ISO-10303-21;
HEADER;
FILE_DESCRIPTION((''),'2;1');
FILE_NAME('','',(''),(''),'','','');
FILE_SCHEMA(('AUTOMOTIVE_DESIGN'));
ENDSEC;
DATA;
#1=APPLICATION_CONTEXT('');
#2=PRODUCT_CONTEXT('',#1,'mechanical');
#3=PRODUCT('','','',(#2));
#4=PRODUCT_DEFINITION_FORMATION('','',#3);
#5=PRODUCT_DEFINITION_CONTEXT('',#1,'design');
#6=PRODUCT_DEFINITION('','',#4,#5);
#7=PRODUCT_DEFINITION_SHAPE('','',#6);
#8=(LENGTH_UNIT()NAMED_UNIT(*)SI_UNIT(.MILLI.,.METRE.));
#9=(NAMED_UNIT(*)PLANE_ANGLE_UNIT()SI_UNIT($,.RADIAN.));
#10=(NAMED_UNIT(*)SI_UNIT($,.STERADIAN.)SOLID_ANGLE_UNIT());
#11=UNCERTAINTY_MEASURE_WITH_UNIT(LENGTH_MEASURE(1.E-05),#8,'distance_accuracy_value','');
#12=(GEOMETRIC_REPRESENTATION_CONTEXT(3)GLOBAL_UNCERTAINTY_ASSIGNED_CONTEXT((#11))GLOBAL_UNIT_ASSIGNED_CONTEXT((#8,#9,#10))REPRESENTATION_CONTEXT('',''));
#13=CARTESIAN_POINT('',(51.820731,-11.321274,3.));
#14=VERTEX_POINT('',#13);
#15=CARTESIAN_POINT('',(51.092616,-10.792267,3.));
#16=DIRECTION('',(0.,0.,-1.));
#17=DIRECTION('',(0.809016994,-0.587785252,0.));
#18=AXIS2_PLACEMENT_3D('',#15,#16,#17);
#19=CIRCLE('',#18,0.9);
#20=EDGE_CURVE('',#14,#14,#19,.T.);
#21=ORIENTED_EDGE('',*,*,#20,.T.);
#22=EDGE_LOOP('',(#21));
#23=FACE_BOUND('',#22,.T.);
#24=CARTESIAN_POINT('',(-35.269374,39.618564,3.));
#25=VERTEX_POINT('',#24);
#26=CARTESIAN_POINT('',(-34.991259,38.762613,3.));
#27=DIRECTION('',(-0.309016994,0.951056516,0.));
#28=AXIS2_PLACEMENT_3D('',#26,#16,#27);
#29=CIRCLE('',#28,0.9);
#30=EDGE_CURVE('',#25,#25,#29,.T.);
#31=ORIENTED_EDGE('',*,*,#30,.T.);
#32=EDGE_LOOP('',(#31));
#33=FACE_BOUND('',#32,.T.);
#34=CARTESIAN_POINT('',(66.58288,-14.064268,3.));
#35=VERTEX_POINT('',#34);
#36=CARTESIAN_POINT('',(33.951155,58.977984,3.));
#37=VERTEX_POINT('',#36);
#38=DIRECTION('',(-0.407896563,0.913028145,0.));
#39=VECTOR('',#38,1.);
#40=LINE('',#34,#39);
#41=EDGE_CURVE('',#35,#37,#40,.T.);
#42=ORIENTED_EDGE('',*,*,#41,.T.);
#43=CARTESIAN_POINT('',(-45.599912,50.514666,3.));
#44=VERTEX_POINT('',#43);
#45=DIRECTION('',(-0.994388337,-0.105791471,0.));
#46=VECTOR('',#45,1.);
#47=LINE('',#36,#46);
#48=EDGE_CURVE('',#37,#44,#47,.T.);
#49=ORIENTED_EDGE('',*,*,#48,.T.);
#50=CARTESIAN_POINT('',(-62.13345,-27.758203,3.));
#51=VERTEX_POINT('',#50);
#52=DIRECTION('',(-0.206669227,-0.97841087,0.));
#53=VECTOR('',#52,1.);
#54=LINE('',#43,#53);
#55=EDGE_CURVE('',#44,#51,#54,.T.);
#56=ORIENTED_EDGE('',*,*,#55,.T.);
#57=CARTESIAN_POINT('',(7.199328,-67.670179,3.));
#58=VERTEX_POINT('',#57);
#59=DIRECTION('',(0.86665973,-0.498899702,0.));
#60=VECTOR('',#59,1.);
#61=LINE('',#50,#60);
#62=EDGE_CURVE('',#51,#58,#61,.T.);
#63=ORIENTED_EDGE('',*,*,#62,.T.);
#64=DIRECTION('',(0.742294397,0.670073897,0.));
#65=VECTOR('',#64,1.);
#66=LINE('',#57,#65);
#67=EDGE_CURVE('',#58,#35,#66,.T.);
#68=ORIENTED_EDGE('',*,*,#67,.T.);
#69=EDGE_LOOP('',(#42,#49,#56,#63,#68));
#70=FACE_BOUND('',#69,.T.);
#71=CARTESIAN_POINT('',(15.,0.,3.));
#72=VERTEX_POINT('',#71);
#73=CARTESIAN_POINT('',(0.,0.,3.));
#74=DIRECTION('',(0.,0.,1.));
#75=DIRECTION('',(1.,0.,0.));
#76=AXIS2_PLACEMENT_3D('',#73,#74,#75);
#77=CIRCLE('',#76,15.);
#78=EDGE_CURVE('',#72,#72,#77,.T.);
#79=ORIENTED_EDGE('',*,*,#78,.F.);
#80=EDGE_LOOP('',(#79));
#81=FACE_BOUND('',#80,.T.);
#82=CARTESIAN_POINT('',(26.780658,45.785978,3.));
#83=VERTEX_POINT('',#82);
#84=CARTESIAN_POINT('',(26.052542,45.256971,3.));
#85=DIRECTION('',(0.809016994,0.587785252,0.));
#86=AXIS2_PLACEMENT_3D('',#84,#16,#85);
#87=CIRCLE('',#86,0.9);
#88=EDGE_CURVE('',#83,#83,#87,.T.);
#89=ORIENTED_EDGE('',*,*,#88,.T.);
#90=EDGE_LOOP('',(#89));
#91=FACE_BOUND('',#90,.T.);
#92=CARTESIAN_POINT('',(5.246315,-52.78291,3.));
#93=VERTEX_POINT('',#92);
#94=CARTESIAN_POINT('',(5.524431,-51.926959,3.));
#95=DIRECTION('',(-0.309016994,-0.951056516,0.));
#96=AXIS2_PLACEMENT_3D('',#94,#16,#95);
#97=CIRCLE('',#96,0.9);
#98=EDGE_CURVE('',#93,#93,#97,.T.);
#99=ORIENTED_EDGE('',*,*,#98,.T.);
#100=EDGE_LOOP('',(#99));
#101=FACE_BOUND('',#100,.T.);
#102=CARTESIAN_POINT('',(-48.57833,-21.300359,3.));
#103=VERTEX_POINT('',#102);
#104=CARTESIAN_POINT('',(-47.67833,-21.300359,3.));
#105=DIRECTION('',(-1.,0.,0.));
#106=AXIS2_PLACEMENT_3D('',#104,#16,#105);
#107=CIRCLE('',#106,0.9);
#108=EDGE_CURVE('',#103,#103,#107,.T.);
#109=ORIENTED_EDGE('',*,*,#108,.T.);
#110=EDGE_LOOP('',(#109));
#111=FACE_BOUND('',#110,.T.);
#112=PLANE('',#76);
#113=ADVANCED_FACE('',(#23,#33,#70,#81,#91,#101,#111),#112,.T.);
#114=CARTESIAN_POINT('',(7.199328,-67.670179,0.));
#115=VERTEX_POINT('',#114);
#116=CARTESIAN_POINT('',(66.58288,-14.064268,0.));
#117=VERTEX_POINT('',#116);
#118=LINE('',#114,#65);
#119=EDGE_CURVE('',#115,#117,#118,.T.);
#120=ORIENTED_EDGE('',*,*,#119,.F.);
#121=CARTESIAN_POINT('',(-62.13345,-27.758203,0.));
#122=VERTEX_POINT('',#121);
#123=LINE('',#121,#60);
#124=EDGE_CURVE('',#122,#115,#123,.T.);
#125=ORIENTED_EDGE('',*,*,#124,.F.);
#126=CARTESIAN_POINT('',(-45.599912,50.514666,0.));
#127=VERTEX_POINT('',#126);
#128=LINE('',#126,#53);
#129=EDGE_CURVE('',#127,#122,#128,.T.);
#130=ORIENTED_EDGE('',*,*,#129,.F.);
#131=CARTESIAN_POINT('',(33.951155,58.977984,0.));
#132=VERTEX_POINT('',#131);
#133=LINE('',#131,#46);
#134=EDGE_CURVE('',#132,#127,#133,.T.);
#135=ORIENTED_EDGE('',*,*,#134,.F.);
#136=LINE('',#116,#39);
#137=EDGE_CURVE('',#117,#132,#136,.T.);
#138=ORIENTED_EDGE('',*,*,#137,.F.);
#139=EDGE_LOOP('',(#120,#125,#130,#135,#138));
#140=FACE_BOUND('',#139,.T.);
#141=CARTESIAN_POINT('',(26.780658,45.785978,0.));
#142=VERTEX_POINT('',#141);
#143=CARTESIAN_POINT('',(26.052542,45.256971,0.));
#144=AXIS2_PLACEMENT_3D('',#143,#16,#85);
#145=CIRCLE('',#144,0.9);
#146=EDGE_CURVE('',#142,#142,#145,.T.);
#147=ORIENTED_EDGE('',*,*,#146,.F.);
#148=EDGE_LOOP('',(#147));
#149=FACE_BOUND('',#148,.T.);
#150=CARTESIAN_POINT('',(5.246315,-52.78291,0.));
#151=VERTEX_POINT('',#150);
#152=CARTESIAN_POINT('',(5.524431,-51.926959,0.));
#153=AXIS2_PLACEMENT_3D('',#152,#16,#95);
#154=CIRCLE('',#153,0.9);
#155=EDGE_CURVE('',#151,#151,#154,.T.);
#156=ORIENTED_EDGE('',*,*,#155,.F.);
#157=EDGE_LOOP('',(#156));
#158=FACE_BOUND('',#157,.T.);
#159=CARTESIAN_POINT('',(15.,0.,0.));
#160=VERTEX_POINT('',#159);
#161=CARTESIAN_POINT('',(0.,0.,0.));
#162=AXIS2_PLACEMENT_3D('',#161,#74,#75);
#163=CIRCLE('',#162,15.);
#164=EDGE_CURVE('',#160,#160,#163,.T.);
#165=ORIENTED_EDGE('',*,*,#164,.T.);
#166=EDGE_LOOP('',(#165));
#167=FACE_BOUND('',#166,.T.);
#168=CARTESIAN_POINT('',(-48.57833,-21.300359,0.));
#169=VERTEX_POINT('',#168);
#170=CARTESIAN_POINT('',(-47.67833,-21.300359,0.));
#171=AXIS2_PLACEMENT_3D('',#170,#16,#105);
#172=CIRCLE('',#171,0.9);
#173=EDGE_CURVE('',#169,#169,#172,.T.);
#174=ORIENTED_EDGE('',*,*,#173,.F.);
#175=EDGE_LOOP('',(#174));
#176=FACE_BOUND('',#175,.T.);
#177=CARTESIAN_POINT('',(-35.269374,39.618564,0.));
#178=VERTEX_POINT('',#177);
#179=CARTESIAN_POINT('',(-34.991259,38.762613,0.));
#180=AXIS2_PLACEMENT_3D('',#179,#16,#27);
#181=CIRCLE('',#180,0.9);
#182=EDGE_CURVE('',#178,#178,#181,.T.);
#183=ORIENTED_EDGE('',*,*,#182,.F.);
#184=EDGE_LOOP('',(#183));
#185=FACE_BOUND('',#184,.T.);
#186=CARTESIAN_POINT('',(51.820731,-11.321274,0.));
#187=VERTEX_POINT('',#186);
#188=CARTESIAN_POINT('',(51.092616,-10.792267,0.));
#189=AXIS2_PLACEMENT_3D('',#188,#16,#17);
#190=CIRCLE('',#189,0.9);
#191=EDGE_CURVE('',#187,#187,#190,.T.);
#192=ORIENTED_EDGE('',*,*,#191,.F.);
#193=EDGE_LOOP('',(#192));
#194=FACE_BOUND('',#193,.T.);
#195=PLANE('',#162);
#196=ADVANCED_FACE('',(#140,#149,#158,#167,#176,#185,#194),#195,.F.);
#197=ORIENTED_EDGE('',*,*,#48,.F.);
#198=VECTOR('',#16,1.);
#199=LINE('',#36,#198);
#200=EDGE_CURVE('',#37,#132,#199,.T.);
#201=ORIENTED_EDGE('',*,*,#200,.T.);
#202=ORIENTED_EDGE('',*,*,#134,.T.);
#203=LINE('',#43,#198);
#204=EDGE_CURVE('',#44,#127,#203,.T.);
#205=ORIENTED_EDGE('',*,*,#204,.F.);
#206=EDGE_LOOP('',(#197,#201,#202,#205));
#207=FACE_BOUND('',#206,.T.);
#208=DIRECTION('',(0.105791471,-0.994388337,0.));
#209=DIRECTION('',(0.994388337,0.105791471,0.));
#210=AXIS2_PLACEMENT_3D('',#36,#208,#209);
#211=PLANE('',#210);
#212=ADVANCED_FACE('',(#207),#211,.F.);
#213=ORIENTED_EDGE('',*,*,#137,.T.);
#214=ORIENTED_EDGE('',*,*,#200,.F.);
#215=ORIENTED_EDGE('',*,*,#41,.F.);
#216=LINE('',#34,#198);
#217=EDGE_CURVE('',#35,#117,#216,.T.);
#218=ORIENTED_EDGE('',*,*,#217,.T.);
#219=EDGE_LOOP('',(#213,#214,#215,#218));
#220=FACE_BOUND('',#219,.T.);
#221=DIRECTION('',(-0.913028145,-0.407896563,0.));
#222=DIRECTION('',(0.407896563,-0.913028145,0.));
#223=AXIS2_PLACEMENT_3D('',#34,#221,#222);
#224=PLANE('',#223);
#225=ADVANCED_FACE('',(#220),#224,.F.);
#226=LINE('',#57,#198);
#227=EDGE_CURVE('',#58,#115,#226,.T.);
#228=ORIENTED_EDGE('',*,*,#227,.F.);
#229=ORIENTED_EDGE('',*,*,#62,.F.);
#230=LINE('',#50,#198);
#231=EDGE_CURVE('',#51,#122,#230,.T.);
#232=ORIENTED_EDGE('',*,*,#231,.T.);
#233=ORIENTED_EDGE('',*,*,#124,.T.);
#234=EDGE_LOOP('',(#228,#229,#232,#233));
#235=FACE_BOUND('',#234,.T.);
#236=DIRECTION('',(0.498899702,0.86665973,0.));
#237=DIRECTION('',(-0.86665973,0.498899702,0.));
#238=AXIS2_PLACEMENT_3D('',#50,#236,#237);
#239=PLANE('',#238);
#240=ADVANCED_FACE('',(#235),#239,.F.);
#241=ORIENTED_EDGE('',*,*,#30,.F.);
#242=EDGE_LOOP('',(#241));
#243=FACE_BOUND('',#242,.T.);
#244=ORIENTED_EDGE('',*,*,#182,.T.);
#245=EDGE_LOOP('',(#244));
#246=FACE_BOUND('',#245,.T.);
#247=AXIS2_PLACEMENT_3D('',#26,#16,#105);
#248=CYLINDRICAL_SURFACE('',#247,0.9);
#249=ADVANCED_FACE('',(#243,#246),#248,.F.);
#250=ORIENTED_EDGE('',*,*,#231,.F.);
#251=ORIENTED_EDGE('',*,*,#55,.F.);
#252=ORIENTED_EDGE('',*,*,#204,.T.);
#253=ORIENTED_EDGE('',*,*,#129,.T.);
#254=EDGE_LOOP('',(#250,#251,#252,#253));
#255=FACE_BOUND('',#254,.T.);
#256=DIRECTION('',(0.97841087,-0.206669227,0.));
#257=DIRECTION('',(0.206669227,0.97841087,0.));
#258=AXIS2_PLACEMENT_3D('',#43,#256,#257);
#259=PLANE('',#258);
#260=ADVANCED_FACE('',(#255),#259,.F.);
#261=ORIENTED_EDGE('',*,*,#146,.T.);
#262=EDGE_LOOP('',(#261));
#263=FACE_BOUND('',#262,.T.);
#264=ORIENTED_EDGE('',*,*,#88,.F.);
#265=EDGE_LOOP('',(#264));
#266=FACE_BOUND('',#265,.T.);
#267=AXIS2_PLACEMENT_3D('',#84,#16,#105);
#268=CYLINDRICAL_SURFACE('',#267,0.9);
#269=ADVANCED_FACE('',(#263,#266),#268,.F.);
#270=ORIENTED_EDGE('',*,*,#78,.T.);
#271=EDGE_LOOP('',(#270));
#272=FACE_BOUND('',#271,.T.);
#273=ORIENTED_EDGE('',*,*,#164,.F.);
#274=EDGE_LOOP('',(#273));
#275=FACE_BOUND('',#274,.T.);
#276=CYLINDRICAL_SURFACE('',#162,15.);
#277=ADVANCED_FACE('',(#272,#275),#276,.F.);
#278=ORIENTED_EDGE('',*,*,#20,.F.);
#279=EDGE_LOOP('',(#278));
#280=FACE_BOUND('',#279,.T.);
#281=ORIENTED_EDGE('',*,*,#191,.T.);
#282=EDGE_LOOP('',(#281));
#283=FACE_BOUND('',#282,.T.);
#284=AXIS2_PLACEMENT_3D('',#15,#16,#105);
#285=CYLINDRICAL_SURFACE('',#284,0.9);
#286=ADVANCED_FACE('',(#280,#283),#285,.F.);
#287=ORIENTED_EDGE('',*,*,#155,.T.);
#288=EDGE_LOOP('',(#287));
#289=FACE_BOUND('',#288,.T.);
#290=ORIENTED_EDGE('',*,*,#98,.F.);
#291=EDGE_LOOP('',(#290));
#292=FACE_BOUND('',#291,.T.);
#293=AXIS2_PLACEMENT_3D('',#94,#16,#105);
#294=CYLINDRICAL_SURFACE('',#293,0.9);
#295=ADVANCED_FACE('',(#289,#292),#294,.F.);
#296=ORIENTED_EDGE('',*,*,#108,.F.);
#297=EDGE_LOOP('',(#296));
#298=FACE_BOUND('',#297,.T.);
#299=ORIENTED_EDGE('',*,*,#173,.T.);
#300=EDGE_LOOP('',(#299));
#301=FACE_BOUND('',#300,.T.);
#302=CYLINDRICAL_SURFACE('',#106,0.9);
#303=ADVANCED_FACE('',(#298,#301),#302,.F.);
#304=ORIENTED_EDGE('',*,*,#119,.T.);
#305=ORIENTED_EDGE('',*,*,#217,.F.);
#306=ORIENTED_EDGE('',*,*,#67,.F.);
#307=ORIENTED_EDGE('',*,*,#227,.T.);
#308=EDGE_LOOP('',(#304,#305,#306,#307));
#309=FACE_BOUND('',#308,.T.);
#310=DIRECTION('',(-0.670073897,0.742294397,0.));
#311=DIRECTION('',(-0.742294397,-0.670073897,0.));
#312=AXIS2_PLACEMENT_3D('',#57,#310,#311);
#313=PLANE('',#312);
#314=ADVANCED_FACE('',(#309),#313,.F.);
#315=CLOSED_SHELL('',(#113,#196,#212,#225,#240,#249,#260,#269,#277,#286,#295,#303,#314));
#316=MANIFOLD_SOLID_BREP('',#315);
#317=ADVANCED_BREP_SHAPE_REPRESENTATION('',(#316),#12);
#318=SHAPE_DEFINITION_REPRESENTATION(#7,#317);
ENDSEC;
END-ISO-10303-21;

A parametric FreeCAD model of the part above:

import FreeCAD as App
import Part
import Sketcher
from FreeCAD import Vector
Q = App.Units.Quantity


def add_polygon(sketch, points):
    """Adds a closed chain of lines whose ends are joined by coincident constraints."""
    first, n = sketch.GeometryCount, len(points)
    for a, b in zip(points, points[1:] + points[:1]):
        sketch.addGeometry(Part.LineSegment(App.Vector(*a, 0), App.Vector(*b, 0)), False)
    for i in range(n):
        sketch.addConstraint(Sketcher.Constraint("Coincident", first + i, 2, first + (i + 1) % n, 1))

doc = App.newDocument("Part")
body = doc.addObject("PartDesign::Body", "Body")

# Sketch on XY plane
sketch1 = doc.addObject("Sketcher::SketchObject", "Sketch")
body.addObject(sketch1)
sketch1.AttachmentSupport = (doc.XY_Plane, [""])
sketch1.MapMode = "FlatFace"
add_polygon(sketch1, [(-62, -28), (7, -68), (67, -14), (34, 59), (-46, 51)])  # lines 0-4
sketch1.addConstraint(Sketcher.Constraint("Equal", 0, 1))
sketch1.addConstraint(Sketcher.Constraint("Equal", 1, 2))
sketch1.addConstraint(Sketcher.Constraint("Equal", 2, 3))
sketch1.addConstraint(Sketcher.Constraint("Equal", 3, 4))
sketch1.addConstraint(Sketcher.Constraint("Distance", 0, Q("80 mm")))
sketch1.addConstraint(Sketcher.Constraint("DistanceX", -1, 1, 0, 2, Q("7.199328 mm")))
sketch1.addConstraint(Sketcher.Constraint("DistanceY", 0, 2, -1, 1, Q("67.670179 mm")))
sketch1.addConstraint(Sketcher.Constraint("DistanceX", -1, 1, 1, 2, Q("66.58288 mm")))
sketch1.addConstraint(Sketcher.Constraint("DistanceX", 4, 2, -1, 1, Q("62.13345 mm")))
sketch1.addConstraint(Sketcher.Constraint("DistanceY", 1, 2, 2, 2, Q("73.042252 mm")))
pad1 = doc.addObject("PartDesign::Pad", "Pad")
body.addObject(pad1)
pad1.Profile = sketch1
pad1.Length = 3

# Sketch on XY plane
sketch2 = doc.addObject("Sketcher::SketchObject", "Sketch001")
body.addObject(sketch2)
sketch2.AttachmentSupport = (doc.XY_Plane, [""])
sketch2.MapMode = "FlatFace"
sketch2.AttachmentOffset = App.Placement(Vector(0, 0, 3), App.Rotation())
sketch2.addGeometry(Part.Circle(Vector(0, 0, 0), Vector(0, 0, 1), 15), False)
sketch2.addConstraint(Sketcher.Constraint("Coincident", 0, 3, -1, 1))
sketch2.addConstraint(Sketcher.Constraint("Diameter", 0, Q("30 mm")))
pocket1 = doc.addObject("PartDesign::Pocket", "Pocket")
body.addObject(pocket1)
pocket1.Profile = sketch2
pocket1.Length = 3

# Sketch on XY plane
sketch3 = doc.addObject("Sketcher::SketchObject", "Sketch002")
body.addObject(sketch3)
sketch3.AttachmentSupport = (doc.XY_Plane, [""])
sketch3.MapMode = "FlatFace"
sketch3.addGeometry(Part.Circle(Vector(-47.7, -21.3, 0), Vector(0, 0, 1), 0.9), False)
sketch3.addConstraint(Sketcher.Constraint("Diameter", 0, Q("1.8 mm")))
sketch3.addConstraint(Sketcher.Constraint("DistanceX", 0, 3, -1, 1, Q("47.67833 mm")))
sketch3.addConstraint(Sketcher.Constraint("DistanceY", 0, 3, -1, 1, Q("21.300359 mm")))
pocket2 = doc.addObject("PartDesign::Pocket", "Pocket001")
body.addObject(pocket2)
pocket2.Profile = sketch3
pocket2.Length = 3
pocket2.Reversed = True
doc.recompute()

polarpattern = doc.addObject("PartDesign::PolarPattern", "PolarPattern")
body.addObject(polarpattern)
polarpattern.Originals = [pocket2]
polarpattern.Axis = (doc.Z_Axis, [""])
polarpattern.Angle = 360
polarpattern.Occurrences = 5
body.Tip = polarpattern

doc.recompute()
